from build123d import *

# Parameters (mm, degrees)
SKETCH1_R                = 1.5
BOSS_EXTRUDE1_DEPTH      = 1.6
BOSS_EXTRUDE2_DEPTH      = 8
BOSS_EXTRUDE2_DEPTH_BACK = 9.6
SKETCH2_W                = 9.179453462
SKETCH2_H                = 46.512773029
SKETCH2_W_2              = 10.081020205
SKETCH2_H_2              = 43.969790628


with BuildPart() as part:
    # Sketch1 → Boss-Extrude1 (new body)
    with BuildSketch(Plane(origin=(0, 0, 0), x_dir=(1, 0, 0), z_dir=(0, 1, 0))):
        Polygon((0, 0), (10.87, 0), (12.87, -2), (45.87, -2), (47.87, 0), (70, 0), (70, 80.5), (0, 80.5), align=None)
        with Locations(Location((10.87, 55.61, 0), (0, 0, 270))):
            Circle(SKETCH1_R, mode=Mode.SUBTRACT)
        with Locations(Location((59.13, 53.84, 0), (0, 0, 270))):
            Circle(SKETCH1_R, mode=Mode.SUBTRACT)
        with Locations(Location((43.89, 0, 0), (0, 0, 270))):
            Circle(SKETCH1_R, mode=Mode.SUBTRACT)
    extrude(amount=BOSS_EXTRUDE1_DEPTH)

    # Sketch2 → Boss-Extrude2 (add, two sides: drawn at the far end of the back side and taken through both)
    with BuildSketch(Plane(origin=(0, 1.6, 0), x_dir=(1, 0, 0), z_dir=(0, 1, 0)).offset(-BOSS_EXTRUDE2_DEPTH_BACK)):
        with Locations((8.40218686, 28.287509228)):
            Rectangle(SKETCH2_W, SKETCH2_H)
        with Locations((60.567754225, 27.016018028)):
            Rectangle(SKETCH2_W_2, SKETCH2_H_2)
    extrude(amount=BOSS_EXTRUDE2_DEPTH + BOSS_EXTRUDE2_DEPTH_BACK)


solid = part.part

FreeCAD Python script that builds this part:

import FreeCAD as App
import Part
import Sketcher


def add_polygon(sketch, points):
    """Adds a closed chain of lines whose ends are joined by coincident constraints."""
    first, n = sketch.GeometryCount, len(points)
    for a, b in zip(points, points[1:] + points[:1]):
        sketch.addGeometry(Part.LineSegment(App.Vector(*a, 0), App.Vector(*b, 0)), False)
    for i in range(n):
        sketch.addConstraint(Sketcher.Constraint("Coincident", first + i, 2, first + (i + 1) % n, 1))

doc = App.newDocument("Part")
body = doc.addObject("PartDesign::Body", "Body")

sketch1 = doc.addObject("Sketcher::SketchObject", "Sketch")
body.addObject(sketch1)
sketch1.AttachmentSupport = (doc.XZ_Plane, [""])
sketch1.MapMode = "FlatFace"
add_polygon(sketch1, [(0, 0), (10.9, 0), (12.9, 2), (45.9, 2), (47.9, 0), (70, 0), (70, -80.5), (0, -80.5)])
sketch1.addGeometry(Part.Circle(App.Vector(43.9, 0, 0), App.Vector(0, 0, 1), 1.5), False)
sketch1.addGeometry(Part.Circle(App.Vector(10.9, -55.6, 0), App.Vector(0, 0, 1), 1.5), False)
sketch1.addGeometry(Part.Circle(App.Vector(59.1, -53.8, 0), App.Vector(0, 0, 1), 1.5), False)
sketch1.addConstraint(Sketcher.Constraint("Horizontal", 0))
sketch1.addConstraint(Sketcher.Constraint("Horizontal", 2))
sketch1.addConstraint(Sketcher.Constraint("Horizontal", 4))
sketch1.addConstraint(Sketcher.Constraint("Vertical", 5))
sketch1.addConstraint(Sketcher.Constraint("Horizontal", 6))
sketch1.addConstraint(Sketcher.Constraint("Vertical", 7))
sketch1.addConstraint(Sketcher.Constraint("Coincident", 7, 2, -1, 1))
sketch1.addConstraint(Sketcher.Constraint("Equal", 8, 9))
sketch1.addConstraint(Sketcher.Constraint("Equal", 9, 10))
sketch1.addConstraint(Sketcher.Constraint("PointOnObject", 8, 3, -1))
sketch1.addConstraint(Sketcher.Constraint("PointOnObject", 3, 2, -1))
sketch1.addConstraint(Sketcher.Constraint("Perpendicular", 1, 3))
sketch1.addConstraint(Sketcher.Constraint("Vertical", 9, 3, 0, 2))
sketch1.addConstraint(Sketcher.Constraint("Equal", 1, 3))
sketch1.addConstraint(Sketcher.Constraint("Diameter", 8, 3.0))
sketch1.addConstraint(Sketcher.Constraint("DistanceX", 2, 1, 2, 2, 33.0))
sketch1.addConstraint(Sketcher.Constraint("DistanceX", 6, 2, 6, 1, 70.0))
sketch1.addConstraint(Sketcher.Constraint("DistanceY", 5, 2, 5, 1, 80.5))
sketch1.addConstraint(Sketcher.Constraint("DistanceY", -1, 1, 1, 2, 2.0))
sketch1.addConstraint(Sketcher.Constraint("DistanceX", 0, 1, 0, 2, 10.87))
sketch1.addConstraint(Sketcher.Constraint("DistanceX", -1, 1, 8, 3, 43.89))
sketch1.addConstraint(Sketcher.Constraint("DistanceY", 9, 3, -1, 1, 55.61))
sketch1.addConstraint(Sketcher.Constraint("DistanceX", -1, 1, 10, 3, 59.13))
sketch1.addConstraint(Sketcher.Constraint("DistanceY", 10, 3, -1, 1, 53.84))
pad1 = doc.addObject("PartDesign::Pad", "Pad")
body.addObject(pad1)
pad1.Profile = sketch1
pad1.Length = 1.6
pad1.Reversed = True

sketch2 = doc.addObject("Sketcher::SketchObject", "Sketch001")
body.addObject(sketch2)
sketch2.AttachmentSupport = (doc.XZ_Plane, [""])
sketch2.MapMode = "FlatFace"
sketch2.AttachmentOffset = App.Placement(App.Vector(0, 0, -1.6), App.Rotation())
add_polygon(sketch2, [(4, -52), (4, -5), (13, -5), (13, -52)])
add_polygon(sketch2, [(56, -49), (56, -5), (66, -5), (66, -49)])
sketch2.addConstraint(Sketcher.Constraint("Vertical", 0))
sketch2.addConstraint(Sketcher.Constraint("Horizontal", 1))
sketch2.addConstraint(Sketcher.Constraint("Vertical", 2))
sketch2.addConstraint(Sketcher.Constraint("Horizontal", 3))
sketch2.addConstraint(Sketcher.Constraint("Vertical", 4))
sketch2.addConstraint(Sketcher.Constraint("Horizontal", 5))
sketch2.addConstraint(Sketcher.Constraint("Vertical", 6))
sketch2.addConstraint(Sketcher.Constraint("Horizontal", 7))
sketch2.addConstraint(Sketcher.Constraint("Horizontal", 1, 2, 4, 2))
sketch2.addConstraint(Sketcher.Constraint("DistanceX", 5, 1, 5, 2, 10.08102))
sketch2.addConstraint(Sketcher.Constraint("DistanceY", 4, 1, 4, 2, 43.969791))
sketch2.addConstraint(Sketcher.Constraint("DistanceX", 1, 1, 1, 2, 9.179453))
sketch2.addConstraint(Sketcher.Constraint("DistanceY", 0, 1, 0, 2, 46.512773))
sketch2.addConstraint(Sketcher.Constraint("DistanceX", -1, 1, 0, 2, 3.81246))
sketch2.addConstraint(Sketcher.Constraint("DistanceX", 1, 2, 4, 2, 42.535331))
sketch2.addConstraint(Sketcher.Constraint("DistanceY", 0, 2, -1, 1, 5.031123))
pad2 = doc.addObject("PartDesign::Pad", "Pad001")
body.addObject(pad2)
pad2.Profile = sketch2
pad2.Type = "TwoLengths"
pad2.Length = 8
pad2.Length2 = 9.6
pad2.Reversed = True

doc.recompute()
